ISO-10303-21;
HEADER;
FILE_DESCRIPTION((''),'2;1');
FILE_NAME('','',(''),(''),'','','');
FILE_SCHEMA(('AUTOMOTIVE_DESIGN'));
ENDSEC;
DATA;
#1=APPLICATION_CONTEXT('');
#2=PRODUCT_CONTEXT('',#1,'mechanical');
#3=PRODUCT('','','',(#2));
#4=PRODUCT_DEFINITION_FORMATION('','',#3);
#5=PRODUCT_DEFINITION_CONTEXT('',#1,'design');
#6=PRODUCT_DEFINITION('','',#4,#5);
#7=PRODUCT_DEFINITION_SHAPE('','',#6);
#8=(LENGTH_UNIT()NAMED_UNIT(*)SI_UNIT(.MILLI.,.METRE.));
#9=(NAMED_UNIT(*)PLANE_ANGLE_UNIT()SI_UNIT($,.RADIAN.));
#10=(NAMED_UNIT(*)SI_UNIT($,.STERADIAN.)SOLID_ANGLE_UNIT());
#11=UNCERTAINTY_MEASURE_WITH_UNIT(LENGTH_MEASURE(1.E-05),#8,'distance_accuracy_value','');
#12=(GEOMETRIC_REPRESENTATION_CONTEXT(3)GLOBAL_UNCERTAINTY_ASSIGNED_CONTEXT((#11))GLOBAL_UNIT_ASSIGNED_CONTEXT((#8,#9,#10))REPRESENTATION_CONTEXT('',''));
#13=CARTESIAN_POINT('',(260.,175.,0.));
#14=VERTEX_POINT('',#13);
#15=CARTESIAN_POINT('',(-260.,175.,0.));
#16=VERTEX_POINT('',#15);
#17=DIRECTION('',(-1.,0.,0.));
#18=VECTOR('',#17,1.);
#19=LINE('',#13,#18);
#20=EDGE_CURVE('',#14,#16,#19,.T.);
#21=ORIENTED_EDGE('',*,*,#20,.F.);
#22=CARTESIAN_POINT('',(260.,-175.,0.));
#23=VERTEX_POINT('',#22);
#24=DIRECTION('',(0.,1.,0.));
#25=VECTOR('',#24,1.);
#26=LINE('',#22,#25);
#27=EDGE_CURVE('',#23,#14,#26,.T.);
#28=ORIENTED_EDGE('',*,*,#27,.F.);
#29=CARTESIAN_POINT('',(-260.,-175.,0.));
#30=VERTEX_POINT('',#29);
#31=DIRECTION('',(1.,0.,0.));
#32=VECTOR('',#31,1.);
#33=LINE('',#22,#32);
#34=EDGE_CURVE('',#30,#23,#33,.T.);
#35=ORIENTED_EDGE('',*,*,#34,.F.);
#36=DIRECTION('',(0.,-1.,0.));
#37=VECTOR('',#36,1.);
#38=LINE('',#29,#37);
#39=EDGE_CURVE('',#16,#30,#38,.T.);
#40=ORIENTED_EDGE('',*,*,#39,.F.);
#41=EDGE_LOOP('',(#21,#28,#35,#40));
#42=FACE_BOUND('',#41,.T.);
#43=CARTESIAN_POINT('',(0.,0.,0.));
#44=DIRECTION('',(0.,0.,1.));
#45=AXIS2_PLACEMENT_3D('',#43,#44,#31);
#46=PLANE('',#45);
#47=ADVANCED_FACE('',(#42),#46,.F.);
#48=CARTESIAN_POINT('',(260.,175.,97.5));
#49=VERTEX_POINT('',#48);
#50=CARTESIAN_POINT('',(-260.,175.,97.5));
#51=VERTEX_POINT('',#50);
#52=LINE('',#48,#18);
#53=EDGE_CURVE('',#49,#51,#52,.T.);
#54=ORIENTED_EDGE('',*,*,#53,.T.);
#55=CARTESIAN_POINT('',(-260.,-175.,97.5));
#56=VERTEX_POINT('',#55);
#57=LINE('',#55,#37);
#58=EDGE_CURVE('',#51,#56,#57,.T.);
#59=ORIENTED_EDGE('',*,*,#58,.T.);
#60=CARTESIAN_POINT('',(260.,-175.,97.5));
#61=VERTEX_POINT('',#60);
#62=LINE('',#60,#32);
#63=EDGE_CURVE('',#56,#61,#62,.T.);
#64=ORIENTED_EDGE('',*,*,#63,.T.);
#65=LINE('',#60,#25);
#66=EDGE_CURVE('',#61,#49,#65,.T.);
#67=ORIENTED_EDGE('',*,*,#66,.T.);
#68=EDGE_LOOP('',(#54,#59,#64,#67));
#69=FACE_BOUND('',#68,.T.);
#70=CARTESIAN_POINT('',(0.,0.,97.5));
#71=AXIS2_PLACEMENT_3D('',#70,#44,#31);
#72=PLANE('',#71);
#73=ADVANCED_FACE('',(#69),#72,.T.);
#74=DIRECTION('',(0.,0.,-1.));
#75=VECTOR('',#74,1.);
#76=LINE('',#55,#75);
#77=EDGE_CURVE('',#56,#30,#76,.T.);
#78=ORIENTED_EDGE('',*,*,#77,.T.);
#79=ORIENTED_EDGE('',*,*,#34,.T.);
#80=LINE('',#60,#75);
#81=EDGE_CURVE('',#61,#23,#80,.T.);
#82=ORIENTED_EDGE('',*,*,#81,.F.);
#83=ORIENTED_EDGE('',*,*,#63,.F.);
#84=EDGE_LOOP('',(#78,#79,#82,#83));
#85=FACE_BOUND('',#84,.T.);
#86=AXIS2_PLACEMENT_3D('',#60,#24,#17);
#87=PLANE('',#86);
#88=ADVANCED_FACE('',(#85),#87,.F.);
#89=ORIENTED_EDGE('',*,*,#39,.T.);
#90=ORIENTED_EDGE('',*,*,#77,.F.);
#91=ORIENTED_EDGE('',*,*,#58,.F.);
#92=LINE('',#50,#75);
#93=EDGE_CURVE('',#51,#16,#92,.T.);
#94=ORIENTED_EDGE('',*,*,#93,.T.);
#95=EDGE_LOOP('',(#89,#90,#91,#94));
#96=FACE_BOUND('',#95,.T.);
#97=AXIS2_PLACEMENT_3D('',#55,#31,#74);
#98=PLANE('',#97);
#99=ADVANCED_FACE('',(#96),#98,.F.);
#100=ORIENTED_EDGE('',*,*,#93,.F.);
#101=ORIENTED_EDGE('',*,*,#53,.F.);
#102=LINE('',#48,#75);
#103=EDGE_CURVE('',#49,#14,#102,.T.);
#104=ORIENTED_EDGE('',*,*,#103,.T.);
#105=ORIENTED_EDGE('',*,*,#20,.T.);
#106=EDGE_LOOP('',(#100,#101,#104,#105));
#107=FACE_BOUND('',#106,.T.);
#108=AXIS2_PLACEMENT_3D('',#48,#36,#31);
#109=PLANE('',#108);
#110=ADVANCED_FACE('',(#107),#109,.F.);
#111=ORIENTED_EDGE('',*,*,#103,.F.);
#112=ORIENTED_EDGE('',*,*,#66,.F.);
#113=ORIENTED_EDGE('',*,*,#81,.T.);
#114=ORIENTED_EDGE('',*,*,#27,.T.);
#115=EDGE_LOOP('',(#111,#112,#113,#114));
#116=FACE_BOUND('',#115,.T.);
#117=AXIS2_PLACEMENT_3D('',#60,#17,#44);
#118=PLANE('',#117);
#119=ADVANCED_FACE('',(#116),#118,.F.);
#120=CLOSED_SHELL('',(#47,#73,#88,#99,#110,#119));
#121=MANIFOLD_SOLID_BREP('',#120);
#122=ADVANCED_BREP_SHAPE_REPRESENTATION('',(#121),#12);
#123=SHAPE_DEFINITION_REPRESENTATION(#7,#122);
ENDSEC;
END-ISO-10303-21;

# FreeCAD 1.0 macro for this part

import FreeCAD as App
import Part
import Sketcher

V = App.Vector

doc = App.newDocument("Part")
body = doc.addObject("PartDesign::Body", "Body")

sketch1 = body.newObject("Sketcher::SketchObject", "Sketch")
sketch1.AttachmentSupport = (doc.getObject("XY_Plane"), [""])
sketch1.MapMode = "FlatFace"
sketch1.addGeometry([
    Part.LineSegment(V(-260, 175, 0), V(-260, -175, 0)),
    Part.LineSegment(V(-260, -175, 0), V(260, -175, 0)),
    Part.LineSegment(V(260, -175, 0), V(260, 175, 0)),
    Part.LineSegment(V(260, 175, 0), V(-260, 175, 0)),
], False)
sketch1.addConstraint([
    Sketcher.Constraint("Coincident", 0, 2, 1, 1),
    Sketcher.Constraint("Coincident", 1, 2, 2, 1),
    Sketcher.Constraint("Coincident", 2, 2, 3, 1),
    Sketcher.Constraint("Coincident", 3, 2, 0, 1),
    Sketcher.Constraint("Vertical", 0),
    Sketcher.Constraint("Horizontal", 1),
    Sketcher.Constraint("Vertical", 2),
    Sketcher.Constraint("Horizontal", 3),
    Sketcher.Constraint("Symmetric", 0, 2, 2, 2, -1, 1),
    Sketcher.Constraint("DistanceX", 1, 1, 1, 2, 520.0),
    Sketcher.Constraint("DistanceY", 0, 2, 0, 1, 350.0),
])
pad1 = body.newObject("PartDesign::Pad", "Pad")
pad1.Profile = sketch1
pad1.Length = 97.5

doc.recompute()
